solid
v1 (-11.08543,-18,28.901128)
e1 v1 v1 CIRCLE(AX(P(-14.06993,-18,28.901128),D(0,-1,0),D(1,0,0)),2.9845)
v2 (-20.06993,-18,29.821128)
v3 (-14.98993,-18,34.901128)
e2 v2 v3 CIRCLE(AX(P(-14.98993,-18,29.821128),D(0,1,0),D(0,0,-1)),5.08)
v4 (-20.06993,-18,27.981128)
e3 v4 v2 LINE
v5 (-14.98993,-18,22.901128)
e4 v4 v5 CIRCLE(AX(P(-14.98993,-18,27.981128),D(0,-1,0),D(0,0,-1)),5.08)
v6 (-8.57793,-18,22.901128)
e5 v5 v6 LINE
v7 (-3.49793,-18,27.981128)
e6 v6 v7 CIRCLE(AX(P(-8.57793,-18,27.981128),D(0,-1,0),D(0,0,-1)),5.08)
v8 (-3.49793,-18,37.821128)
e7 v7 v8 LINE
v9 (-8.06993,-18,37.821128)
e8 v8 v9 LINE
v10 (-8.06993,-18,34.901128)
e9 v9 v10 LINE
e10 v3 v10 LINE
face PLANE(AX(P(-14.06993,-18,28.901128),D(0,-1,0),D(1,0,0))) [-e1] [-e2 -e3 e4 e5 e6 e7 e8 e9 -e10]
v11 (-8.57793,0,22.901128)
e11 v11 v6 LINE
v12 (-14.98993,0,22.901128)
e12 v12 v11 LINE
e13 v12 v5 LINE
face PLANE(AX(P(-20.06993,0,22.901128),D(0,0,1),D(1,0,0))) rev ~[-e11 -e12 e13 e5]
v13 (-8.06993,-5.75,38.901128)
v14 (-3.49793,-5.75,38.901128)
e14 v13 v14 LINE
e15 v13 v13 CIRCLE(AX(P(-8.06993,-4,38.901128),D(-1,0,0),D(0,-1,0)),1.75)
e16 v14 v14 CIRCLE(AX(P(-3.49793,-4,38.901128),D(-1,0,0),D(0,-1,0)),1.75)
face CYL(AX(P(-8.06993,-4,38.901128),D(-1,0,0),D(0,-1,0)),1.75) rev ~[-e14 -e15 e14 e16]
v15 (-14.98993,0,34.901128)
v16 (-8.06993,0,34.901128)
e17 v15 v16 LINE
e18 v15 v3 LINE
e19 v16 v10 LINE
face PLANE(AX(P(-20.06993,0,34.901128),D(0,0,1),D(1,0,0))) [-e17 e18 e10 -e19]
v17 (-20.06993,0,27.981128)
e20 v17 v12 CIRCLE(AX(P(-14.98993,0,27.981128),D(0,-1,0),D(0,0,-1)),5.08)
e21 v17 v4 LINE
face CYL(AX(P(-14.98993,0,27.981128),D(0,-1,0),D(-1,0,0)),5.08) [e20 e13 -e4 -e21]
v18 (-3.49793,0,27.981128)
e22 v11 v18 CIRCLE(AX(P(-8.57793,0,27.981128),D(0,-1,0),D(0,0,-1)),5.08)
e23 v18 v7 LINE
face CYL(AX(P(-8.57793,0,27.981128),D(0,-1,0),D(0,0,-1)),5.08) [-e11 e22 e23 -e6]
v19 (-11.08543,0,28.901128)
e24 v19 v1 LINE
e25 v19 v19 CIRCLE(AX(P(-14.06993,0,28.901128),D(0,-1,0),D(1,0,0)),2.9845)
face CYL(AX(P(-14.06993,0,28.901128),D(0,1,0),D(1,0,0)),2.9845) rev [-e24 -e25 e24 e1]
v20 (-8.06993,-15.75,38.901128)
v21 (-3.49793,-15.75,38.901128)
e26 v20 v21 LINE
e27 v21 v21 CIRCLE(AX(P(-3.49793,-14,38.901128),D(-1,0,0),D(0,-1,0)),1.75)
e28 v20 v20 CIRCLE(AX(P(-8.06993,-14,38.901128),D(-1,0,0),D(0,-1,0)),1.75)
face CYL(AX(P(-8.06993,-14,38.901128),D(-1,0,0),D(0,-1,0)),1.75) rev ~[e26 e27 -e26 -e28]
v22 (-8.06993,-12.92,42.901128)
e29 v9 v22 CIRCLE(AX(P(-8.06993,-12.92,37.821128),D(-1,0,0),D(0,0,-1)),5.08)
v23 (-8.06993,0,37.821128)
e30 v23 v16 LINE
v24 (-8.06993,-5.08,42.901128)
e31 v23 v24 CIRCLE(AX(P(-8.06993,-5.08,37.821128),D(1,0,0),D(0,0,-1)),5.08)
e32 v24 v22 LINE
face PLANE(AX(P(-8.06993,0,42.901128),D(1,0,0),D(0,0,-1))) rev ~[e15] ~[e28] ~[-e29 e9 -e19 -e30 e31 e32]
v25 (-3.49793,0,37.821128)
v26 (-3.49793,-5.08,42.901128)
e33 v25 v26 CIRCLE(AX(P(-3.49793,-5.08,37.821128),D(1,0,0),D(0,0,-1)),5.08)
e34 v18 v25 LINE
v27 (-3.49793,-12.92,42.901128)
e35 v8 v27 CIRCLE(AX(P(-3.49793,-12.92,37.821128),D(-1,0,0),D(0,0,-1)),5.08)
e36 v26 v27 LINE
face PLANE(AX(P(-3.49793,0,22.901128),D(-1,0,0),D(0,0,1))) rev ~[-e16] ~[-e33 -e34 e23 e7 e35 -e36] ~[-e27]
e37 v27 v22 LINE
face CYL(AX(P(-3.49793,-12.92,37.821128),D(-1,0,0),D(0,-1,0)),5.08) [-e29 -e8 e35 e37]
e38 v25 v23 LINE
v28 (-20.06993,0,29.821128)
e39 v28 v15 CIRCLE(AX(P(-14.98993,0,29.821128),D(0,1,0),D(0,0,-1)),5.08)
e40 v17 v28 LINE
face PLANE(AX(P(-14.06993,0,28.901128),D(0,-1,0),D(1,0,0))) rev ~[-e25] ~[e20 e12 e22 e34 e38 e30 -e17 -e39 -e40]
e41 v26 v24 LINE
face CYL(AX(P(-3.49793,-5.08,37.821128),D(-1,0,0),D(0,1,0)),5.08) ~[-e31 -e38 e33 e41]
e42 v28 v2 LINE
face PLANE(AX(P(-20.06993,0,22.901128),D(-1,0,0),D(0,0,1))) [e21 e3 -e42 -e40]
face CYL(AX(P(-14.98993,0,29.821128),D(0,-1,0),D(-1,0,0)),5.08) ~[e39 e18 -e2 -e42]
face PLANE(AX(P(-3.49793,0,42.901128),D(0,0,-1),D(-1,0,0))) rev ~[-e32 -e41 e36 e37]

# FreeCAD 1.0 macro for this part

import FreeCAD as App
import Part
import Sketcher
Q = App.Units.Quantity


def edges_at(feature, points):
    """Names of the edges that pass closest to the given points."""
    edges = feature.Shape.Edges
    near = lambda p: min(range(len(edges)), key=lambda i: edges[i].distToShape(Part.Vertex(*p))[0])
    return sorted({f"Edge{near(p) + 1}" for p in points})

doc = App.newDocument("Part")
body = doc.addObject("PartDesign::Body", "Body")

# Sketch on XZ plane
sketch1 = doc.addObject("Sketcher::SketchObject", "Sketch")
body.addObject(sketch1)
sketch1.AttachmentSupport = (doc.XZ_Plane, [""])
sketch1.MapMode = "FlatFace"
sketch1.addGeometry([
    Part.LineSegment(App.Vector(-20.1, 34.9, 0), App.Vector(-20.1, 22.9, 0)),  # 0
    Part.LineSegment(App.Vector(-20.1, 22.9, 0), App.Vector(-3.5, 22.9, 0)),  # 1
    Part.LineSegment(App.Vector(-3.5, 22.9, 0), App.Vector(-3.5, 42.9, 0)),  # 2
    Part.LineSegment(App.Vector(-3.5, 42.9, 0), App.Vector(-8.1, 42.9, 0)),  # 3
    Part.LineSegment(App.Vector(-8.1, 42.9, 0), App.Vector(-8.1, 34.9, 0)),  # 4
    Part.LineSegment(App.Vector(-8.1, 34.9, 0), App.Vector(-20.1, 34.9, 0)),  # 5
    Part.Circle(App.Vector(-14.1, 28.9, 0), App.Vector(0, 0, 1), 3),  # 6
], False)
sketch1.addConstraint([
    Sketcher.Constraint("Coincident", 0, 2, 1, 1),
    Sketcher.Constraint("Coincident", 1, 2, 2, 1),
    Sketcher.Constraint("Coincident", 2, 2, 3, 1),
    Sketcher.Constraint("Coincident", 3, 2, 4, 1),
    Sketcher.Constraint("Coincident", 4, 2, 5, 1),
    Sketcher.Constraint("Coincident", 5, 2, 0, 1),
    Sketcher.Constraint("Vertical", 0),
    Sketcher.Constraint("Horizontal", 1),
    Sketcher.Constraint("Vertical", 2),
    Sketcher.Constraint("Horizontal", 3),
    Sketcher.Constraint("Vertical", 4),
    Sketcher.Constraint("Horizontal", 5),
    Sketcher.Constraint("Equal", 5, 0),
    Sketcher.Constraint("DistanceX", 5, 2, 5, 1, Q("12 mm")),
    Sketcher.Constraint("DistanceY", 2, 1, 2, 2, Q("20 mm")),
    Sketcher.Constraint("Diameter", 6, Q("5.969 mm")),
    Sketcher.Constraint("DistanceX", 0, 2, 6, 3, Q("6 mm")),
    Sketcher.Constraint("DistanceY", 0, 2, 6, 3, Q("6 mm")),
    Sketcher.Constraint("DistanceX", 1, 1, 1, 2, Q("16.572 mm")),
    Sketcher.Constraint("DistanceX", 6, 3, -1, 1, Q("14.06993 mm")),
    Sketcher.Constraint("DistanceY", -1, 1, 6, 3, Q("28.901128 mm")),
])
pad1 = doc.addObject("PartDesign::Pad", "Pad")
body.addObject(pad1)
pad1.Profile = sketch1
pad1.Length = 18

# Sketch on YZ plane
sketch2 = doc.addObject("Sketcher::SketchObject", "Sketch001")
body.addObject(sketch2)
sketch2.AttachmentSupport = (doc.YZ_Plane, [""])
sketch2.MapMode = "FlatFace"
sketch2.AttachmentOffset = App.Placement(App.Vector(0, 0, -8.06993), App.Rotation())
sketch2.addGeometry([
    Part.Circle(App.Vector(-4, 38.9, 0), App.Vector(0, 0, 1), 1.8),
    Part.Circle(App.Vector(-14, 38.9, 0), App.Vector(0, 0, 1), 1.8),
], False)
sketch2.addConstraint([
    Sketcher.Constraint("Equal", 0, 1),
    Sketcher.Constraint("Horizontal", 0, 3, 1, 3),
    Sketcher.Constraint("Diameter", 0, Q("3.5 mm")),
    Sketcher.Constraint("DistanceX", 0, 3, -1, 1, Q("4 mm")),
    Sketcher.Constraint("DistanceX", 1, 3, -1, 1, Q("14 mm")),
    Sketcher.Constraint("DistanceY", -1, 1, 0, 3, Q("38.901128 mm")),
])
pocket1 = doc.addObject("PartDesign::Pocket", "Pocket")
body.addObject(pocket1)
pocket1.Profile = sketch2
pocket1.Length = 25.4
pocket1.Reversed = True
doc.recompute()

fillet = doc.addObject("PartDesign::Fillet", "Fillet")
body.addObject(fillet)
fillet.Base = (pocket1, edges_at(pocket1, [
    (-5.784, 0, 42.901),
    (-5.784, -18, 42.901),
    (-20.07, -9, 34.901),
    (-20.07, -9, 22.901),
    (-3.498, -9, 22.901),
]))
fillet.Radius = 5.08

doc.recompute()
